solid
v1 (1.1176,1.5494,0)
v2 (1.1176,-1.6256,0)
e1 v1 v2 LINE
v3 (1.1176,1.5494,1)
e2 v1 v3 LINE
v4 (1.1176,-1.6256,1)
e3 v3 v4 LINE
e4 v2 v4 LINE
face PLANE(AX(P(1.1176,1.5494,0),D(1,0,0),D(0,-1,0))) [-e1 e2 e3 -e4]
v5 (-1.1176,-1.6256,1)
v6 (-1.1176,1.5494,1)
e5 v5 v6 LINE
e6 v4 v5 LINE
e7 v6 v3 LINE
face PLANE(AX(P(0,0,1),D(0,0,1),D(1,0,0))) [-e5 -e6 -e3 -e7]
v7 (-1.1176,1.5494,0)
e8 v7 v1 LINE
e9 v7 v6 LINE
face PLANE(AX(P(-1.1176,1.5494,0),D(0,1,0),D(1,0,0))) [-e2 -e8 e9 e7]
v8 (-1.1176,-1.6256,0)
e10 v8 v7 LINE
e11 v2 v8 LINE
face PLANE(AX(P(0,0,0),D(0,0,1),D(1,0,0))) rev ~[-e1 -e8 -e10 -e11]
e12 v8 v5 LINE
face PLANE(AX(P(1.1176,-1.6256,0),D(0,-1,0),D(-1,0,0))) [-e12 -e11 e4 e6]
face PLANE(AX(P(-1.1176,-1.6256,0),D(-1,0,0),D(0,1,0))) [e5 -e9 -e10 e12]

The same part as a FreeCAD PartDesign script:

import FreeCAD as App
import Part
import Sketcher

V = App.Vector
Q = App.Units.Quantity


def add_polygon(sketch, points):
    """Adds a closed chain of lines whose ends are joined by coincident constraints."""
    first, n = sketch.GeometryCount, len(points)
    for a, b in zip(points, points[1:] + points[:1]):
        sketch.addGeometry(Part.LineSegment(App.Vector(*a, 0), App.Vector(*b, 0)), False)
    for i in range(n):
        sketch.addConstraint(Sketcher.Constraint("Coincident", first + i, 2, first + (i + 1) % n, 1))

doc = App.newDocument("Part")
body = doc.addObject("PartDesign::Body", "Body")

# Sketch on XY plane
sketch1 = doc.addObject("Sketcher::SketchObject", "Sketch")
body.addObject(sketch1)
sketch1.AttachmentSupport = (doc.XY_Plane, [""])
sketch1.MapMode = "FlatFace"
add_polygon(sketch1, [(1.1, 1.5), (-1.1, 1.5), (-1.1, -1.6), (1.1, -1.6)])  # lines 0-3
sketch1.addConstraint([
    Sketcher.Constraint("Horizontal", 0),
    Sketcher.Constraint("Vertical", 1),
    Sketcher.Constraint("Horizontal", 2),
    Sketcher.Constraint("Vertical", 3),
    Sketcher.Constraint("DistanceX", 0, 2, 0, 1, Q("0.088 in")),
    Sketcher.Constraint("DistanceY", 1, 2, 1, 1, Q("0.125 in")),
    Sketcher.Constraint("DistanceX", 0, 2, -1, 1, Q("0.044 in")),
    Sketcher.Constraint("DistanceY", -1, 1, 0, 2, Q("0.061 in")),
])
pad1 = doc.addObject("PartDesign::Pad", "Pad")
body.addObject(pad1)
pad1.Profile = sketch1
pad1.Length = 1

doc.recompute()
